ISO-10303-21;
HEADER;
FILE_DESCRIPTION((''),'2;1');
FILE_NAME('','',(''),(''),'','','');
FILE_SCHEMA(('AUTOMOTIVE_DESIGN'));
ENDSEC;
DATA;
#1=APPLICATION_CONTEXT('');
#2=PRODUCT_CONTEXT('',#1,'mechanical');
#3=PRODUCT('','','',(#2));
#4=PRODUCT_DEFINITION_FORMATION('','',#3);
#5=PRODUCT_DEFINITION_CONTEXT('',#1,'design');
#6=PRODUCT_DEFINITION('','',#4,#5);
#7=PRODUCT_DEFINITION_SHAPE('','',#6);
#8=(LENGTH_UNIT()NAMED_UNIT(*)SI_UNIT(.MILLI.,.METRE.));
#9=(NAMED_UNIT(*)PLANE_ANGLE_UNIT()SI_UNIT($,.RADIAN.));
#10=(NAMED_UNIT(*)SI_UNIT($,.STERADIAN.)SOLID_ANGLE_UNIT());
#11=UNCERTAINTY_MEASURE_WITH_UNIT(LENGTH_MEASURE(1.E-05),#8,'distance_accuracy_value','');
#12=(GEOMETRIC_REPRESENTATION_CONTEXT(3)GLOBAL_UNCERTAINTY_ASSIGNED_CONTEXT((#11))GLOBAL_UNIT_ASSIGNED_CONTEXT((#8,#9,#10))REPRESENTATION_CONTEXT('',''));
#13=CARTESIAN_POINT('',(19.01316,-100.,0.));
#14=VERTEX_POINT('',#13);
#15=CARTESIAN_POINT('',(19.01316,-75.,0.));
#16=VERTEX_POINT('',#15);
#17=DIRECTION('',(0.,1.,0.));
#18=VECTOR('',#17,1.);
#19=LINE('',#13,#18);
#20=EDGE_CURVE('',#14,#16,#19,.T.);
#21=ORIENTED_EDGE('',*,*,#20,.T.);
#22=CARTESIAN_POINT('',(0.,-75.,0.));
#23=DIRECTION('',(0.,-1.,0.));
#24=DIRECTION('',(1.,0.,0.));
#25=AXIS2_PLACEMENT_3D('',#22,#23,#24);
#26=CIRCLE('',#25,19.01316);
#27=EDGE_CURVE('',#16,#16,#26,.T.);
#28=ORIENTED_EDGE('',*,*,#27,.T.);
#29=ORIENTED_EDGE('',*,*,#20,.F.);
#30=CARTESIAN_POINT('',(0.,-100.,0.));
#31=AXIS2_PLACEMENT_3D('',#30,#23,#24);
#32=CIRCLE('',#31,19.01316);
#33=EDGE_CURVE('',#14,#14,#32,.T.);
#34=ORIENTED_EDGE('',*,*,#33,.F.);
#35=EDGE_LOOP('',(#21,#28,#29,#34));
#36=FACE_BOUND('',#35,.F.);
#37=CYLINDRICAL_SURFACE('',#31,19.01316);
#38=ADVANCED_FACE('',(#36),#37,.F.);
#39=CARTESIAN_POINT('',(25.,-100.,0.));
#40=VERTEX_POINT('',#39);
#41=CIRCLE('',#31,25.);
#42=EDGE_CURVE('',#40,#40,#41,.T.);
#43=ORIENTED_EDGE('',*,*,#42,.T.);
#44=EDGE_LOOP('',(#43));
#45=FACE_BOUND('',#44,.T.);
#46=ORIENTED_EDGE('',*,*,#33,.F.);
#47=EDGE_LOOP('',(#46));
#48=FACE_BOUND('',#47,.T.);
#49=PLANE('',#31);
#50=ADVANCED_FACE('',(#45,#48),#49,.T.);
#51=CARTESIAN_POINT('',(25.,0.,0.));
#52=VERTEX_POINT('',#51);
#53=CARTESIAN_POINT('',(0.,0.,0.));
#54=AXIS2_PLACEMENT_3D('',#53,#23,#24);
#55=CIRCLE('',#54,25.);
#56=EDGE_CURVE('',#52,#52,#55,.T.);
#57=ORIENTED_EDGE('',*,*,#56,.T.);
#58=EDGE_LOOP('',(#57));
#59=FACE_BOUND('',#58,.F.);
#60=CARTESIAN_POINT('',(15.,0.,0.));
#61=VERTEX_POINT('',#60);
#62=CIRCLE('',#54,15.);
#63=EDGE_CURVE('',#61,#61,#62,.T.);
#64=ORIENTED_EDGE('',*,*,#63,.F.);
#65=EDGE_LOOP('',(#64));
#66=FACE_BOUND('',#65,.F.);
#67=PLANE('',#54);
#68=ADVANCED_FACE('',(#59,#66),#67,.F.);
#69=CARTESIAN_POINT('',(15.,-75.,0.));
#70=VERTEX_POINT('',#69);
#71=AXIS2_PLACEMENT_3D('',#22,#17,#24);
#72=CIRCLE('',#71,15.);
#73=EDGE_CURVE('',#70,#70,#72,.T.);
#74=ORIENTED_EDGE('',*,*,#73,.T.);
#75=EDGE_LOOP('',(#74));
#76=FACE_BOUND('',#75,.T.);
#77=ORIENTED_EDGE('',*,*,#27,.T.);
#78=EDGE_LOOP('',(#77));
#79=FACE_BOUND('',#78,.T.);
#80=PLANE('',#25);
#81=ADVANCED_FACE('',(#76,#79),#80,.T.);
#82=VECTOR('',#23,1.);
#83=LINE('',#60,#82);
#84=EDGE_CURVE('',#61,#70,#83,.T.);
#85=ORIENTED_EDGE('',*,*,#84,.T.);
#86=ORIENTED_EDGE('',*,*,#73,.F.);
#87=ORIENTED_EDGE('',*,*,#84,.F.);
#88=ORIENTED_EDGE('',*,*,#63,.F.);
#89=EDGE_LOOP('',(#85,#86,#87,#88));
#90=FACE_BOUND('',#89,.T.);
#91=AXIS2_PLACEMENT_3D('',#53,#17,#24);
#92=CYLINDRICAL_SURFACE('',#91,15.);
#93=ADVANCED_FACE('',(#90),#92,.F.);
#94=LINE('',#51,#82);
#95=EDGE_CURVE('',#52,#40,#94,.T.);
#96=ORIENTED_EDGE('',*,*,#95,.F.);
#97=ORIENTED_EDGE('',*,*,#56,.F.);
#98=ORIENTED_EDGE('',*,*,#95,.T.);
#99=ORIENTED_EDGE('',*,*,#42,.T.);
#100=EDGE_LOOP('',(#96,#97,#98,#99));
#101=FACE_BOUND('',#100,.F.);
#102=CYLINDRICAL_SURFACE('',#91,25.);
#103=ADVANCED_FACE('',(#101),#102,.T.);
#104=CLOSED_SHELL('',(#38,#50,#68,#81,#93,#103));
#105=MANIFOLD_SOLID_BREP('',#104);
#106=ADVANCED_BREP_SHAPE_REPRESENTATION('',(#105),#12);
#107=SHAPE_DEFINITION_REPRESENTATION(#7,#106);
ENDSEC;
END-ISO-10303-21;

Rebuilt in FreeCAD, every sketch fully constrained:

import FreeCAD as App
import Part
import Sketcher
Q = App.Units.Quantity

doc = App.newDocument("Part")
body = doc.addObject("PartDesign::Body", "Body")

# Sketch on XZ plane
sketch1 = body.newObject("Sketcher::SketchObject", "Sketch")
sketch1.AttachmentSupport = (doc.getObject("XZ_Plane"), [""])
sketch1.MapMode = "FlatFace"
sketch1.addGeometry([
    Part.Circle(App.Vector(0, 0, 0), App.Vector(0, 0, 1), 25),
    Part.Circle(App.Vector(0, 0, 0), App.Vector(0, 0, 1), 15),
], False)
sketch1.addConstraint([
    Sketcher.Constraint("Coincident", 0, 3, -1, 1),
    Sketcher.Constraint("Coincident", 1, 3, -1, 1),
    Sketcher.Constraint("Diameter", 0, Q("50 mm")),
    Sketcher.Constraint("Diameter", 1, Q("30 mm")),
])
pad1 = body.newObject("PartDesign::Pad", "Pad")
pad1.Profile = sketch1
pad1.Length = 100

# Sketch on XZ plane
sketch2 = body.newObject("Sketcher::SketchObject", "Sketch001")
sketch2.AttachmentSupport = (doc.getObject("XZ_Plane"), [""])
sketch2.MapMode = "FlatFace"
sketch2.AttachmentOffset = App.Placement(App.Vector(0, 0, 100), App.Rotation())
sketch2.addGeometry(Part.Circle(App.Vector(0, 0, 0), App.Vector(0, 0, 1), 19), False)
sketch2.addConstraint([
    Sketcher.Constraint("Coincident", 0, 3, -1, 1),
    Sketcher.Constraint("Diameter", 0, Q("38.02632 mm")),
])
pocket1 = body.newObject("PartDesign::Pocket", "Pocket")
pocket1.Profile = sketch2
pocket1.Length = 25

doc.recompute()
